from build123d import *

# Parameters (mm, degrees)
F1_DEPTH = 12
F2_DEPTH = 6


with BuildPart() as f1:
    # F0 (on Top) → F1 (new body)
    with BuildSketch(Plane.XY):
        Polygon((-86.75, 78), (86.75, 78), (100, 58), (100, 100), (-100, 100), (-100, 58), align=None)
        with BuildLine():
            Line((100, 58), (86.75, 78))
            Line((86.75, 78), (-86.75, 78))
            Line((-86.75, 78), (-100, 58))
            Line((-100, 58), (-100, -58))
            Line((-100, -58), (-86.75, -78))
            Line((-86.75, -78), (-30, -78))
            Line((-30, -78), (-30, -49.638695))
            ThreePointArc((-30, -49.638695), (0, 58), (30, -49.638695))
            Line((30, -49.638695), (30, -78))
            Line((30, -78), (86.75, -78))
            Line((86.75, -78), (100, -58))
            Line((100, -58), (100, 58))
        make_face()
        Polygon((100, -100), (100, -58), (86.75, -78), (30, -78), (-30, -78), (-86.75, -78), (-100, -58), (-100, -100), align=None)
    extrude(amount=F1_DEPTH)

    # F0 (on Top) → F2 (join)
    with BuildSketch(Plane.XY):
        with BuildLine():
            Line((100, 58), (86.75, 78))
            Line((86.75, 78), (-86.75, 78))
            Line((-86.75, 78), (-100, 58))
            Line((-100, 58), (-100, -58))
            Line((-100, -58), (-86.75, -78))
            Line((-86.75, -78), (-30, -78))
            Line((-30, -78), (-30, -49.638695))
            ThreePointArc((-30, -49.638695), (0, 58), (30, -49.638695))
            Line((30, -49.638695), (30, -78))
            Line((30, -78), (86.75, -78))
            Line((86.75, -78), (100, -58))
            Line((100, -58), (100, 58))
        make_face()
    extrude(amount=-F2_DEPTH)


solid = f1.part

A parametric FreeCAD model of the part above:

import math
import FreeCAD as App
import Part
import Sketcher

V = App.Vector
Q = App.Units.Quantity

doc = App.newDocument("Part")
body = doc.addObject("PartDesign::Body", "Body")

# Sketch on XY plane
sketch1 = doc.addObject("Sketcher::SketchObject", "Sketch")
body.addObject(sketch1)
sketch1.AttachmentSupport = (doc.XY_Plane, [""])
sketch1.MapMode = "FlatFace"
sketch1.addGeometry([
    Part.LineSegment(V(100, 100, 0), V(-100, 100, 0)),  # 0
    Part.LineSegment(V(-100, 100, 0), V(-100, -100, 0)),  # 1
    Part.LineSegment(V(-100, -100, 0), V(100, -100, 0)),  # 2
    Part.LineSegment(V(100, -100, 0), V(100, 100, 0)),  # 3
    Part.LineSegment(V(-30, -78, 0), V(-30, -49.638695, 0)),  # 4
    Part.ArcOfCircle(Part.Circle(V(0, 0, 0), V(0, 0, 1), 58), math.radians(-58.85261), math.radians(238.85261)),  # 5
    Part.LineSegment(V(30, -49.638695, 0), V(30, -78, 0)),  # 6
    Part.LineSegment(V(30, -78, 0), V(-30, -78, 0)),  # 7
], False)
sketch1.addConstraint([
    Sketcher.Constraint("Coincident", 0, 2, 1, 1),
    Sketcher.Constraint("Coincident", 1, 2, 2, 1),
    Sketcher.Constraint("Coincident", 2, 2, 3, 1),
    Sketcher.Constraint("Coincident", 3, 2, 0, 1),
    Sketcher.Constraint("Coincident", 4, 2, 5, 2),
    Sketcher.Constraint("Coincident", 5, 1, 6, 1),
    Sketcher.Constraint("Coincident", 6, 2, 7, 1),
    Sketcher.Constraint("Coincident", 7, 2, 4, 1),
    Sketcher.Constraint("Horizontal", 0),
    Sketcher.Constraint("Vertical", 1),
    Sketcher.Constraint("Horizontal", 2),
    Sketcher.Constraint("Vertical", 3),
    Sketcher.Constraint("Vertical", 4),
    Sketcher.Constraint("Vertical", 6),
    Sketcher.Constraint("Horizontal", 7),
    Sketcher.Constraint("Coincident", 5, 3, -1, 1),
    Sketcher.Constraint("Symmetric", 0, 2, 2, 2, -1, 1),
    Sketcher.Constraint("Horizontal", 4, 2, 5, 1),
    Sketcher.Constraint("Equal", 2, 1),
    Sketcher.Constraint("Radius", 5, Q("58 mm")),
    Sketcher.Constraint("DistanceX", 0, 2, 0, 1, Q("200 mm")),
    Sketcher.Constraint("DistanceX", 7, 2, 7, 1, Q("60 mm")),
    Sketcher.Constraint("DistanceY", 6, 2, -1, 1, Q("78 mm")),
])
pad1 = doc.addObject("PartDesign::Pad", "Pad")
body.addObject(pad1)
pad1.Profile = sketch1
pad1.Length = 12

# Sketch on XY plane
sketch2 = doc.addObject("Sketcher::SketchObject", "Sketch001")
body.addObject(sketch2)
sketch2.AttachmentSupport = (doc.XY_Plane, [""])
sketch2.MapMode = "FlatFace"
sketch2.addGeometry([
    Part.LineSegment(V(100, 58, 0), V(86.75, 78, 0)),  # 0
    Part.LineSegment(V(86.75, 78, 0), V(-86.75, 78, 0)),  # 1
    Part.LineSegment(V(-86.75, 78, 0), V(-100, 58, 0)),  # 2
    Part.LineSegment(V(-100, 58, 0), V(-100, -58, 0)),  # 3
    Part.LineSegment(V(-100, -58, 0), V(-86.75, -78, 0)),  # 4
    Part.LineSegment(V(-86.75, -78, 0), V(-30, -78, 0)),  # 5
    Part.LineSegment(V(-30, -78, 0), V(-30, -49.638695, 0)),  # 6
    Part.ArcOfCircle(Part.Circle(V(0, 0, 0), V(0, 0, 1), 58), math.radians(-58.85261), math.radians(238.85261)),  # 7
    Part.LineSegment(V(30, -49.638695, 0), V(30, -78, 0)),  # 8
    Part.LineSegment(V(30, -78, 0), V(86.75, -78, 0)),  # 9
    Part.LineSegment(V(86.75, -78, 0), V(100, -58, 0)),  # 10
    Part.LineSegment(V(100, -58, 0), V(100, 58, 0)),  # 11
], False)
sketch2.addConstraint([
    Sketcher.Constraint("Coincident", 0, 2, 1, 1),
    Sketcher.Constraint("Coincident", 1, 2, 2, 1),
    Sketcher.Constraint("Coincident", 2, 2, 3, 1),
    Sketcher.Constraint("Coincident", 3, 2, 4, 1),
    Sketcher.Constraint("Coincident", 4, 2, 5, 1),
    Sketcher.Constraint("Coincident", 5, 2, 6, 1),
    Sketcher.Constraint("Coincident", 6, 2, 7, 2),
    Sketcher.Constraint("Coincident", 7, 1, 8, 1),
    Sketcher.Constraint("Coincident", 8, 2, 9, 1),
    Sketcher.Constraint("Coincident", 9, 2, 10, 1),
    Sketcher.Constraint("Coincident", 10, 2, 11, 1),
    Sketcher.Constraint("Coincident", 11, 2, 0, 1),
    Sketcher.Constraint("Horizontal", 1),
    Sketcher.Constraint("Vertical", 3),
    Sketcher.Constraint("Horizontal", 5),
    Sketcher.Constraint("Vertical", 6),
    Sketcher.Constraint("Vertical", 8),
    Sketcher.Constraint("Horizontal", 9),
    Sketcher.Constraint("Vertical", 11),
    Sketcher.Constraint("Coincident", 7, 3, -1, 1),
    Sketcher.Constraint("Symmetric", 0, 2, 4, 2, -1, 1),
    Sketcher.Constraint("Symmetric", 1, 2, 9, 2, -1, 1),
    Sketcher.Constraint("Symmetric", 2, 2, 10, 2, -1, 1),
    Sketcher.Constraint("Parallel", 0, 4),
    Sketcher.Constraint("Horizontal", 6, 2, 7, 1),
    Sketcher.Constraint("Horizontal", 3, 2, 10, 2),
    Sketcher.Constraint("Vertical", 1, 2, 4, 2),
    Sketcher.Constraint("Radius", 7, Q("58 mm")),
    Sketcher.Constraint("DistanceY", 3, 2, 3, 1, Q("116 mm")),
    Sketcher.Constraint("DistanceX", 1, 2, 1, 1, Q("173.5 mm")),
    Sketcher.Constraint("DistanceY", -1, 1, 0, 2, Q("78 mm")),
    Sketcher.Constraint("DistanceX", 2, 2, -1, 1, Q("100 mm")),
    Sketcher.Constraint("DistanceX", 5, 2, -1, 1, Q("30 mm")),
])
pad2 = doc.addObject("PartDesign::Pad", "Pad001")
body.addObject(pad2)
pad2.Profile = sketch2
pad2.Length = 6
pad2.Reversed = True

doc.recompute()
